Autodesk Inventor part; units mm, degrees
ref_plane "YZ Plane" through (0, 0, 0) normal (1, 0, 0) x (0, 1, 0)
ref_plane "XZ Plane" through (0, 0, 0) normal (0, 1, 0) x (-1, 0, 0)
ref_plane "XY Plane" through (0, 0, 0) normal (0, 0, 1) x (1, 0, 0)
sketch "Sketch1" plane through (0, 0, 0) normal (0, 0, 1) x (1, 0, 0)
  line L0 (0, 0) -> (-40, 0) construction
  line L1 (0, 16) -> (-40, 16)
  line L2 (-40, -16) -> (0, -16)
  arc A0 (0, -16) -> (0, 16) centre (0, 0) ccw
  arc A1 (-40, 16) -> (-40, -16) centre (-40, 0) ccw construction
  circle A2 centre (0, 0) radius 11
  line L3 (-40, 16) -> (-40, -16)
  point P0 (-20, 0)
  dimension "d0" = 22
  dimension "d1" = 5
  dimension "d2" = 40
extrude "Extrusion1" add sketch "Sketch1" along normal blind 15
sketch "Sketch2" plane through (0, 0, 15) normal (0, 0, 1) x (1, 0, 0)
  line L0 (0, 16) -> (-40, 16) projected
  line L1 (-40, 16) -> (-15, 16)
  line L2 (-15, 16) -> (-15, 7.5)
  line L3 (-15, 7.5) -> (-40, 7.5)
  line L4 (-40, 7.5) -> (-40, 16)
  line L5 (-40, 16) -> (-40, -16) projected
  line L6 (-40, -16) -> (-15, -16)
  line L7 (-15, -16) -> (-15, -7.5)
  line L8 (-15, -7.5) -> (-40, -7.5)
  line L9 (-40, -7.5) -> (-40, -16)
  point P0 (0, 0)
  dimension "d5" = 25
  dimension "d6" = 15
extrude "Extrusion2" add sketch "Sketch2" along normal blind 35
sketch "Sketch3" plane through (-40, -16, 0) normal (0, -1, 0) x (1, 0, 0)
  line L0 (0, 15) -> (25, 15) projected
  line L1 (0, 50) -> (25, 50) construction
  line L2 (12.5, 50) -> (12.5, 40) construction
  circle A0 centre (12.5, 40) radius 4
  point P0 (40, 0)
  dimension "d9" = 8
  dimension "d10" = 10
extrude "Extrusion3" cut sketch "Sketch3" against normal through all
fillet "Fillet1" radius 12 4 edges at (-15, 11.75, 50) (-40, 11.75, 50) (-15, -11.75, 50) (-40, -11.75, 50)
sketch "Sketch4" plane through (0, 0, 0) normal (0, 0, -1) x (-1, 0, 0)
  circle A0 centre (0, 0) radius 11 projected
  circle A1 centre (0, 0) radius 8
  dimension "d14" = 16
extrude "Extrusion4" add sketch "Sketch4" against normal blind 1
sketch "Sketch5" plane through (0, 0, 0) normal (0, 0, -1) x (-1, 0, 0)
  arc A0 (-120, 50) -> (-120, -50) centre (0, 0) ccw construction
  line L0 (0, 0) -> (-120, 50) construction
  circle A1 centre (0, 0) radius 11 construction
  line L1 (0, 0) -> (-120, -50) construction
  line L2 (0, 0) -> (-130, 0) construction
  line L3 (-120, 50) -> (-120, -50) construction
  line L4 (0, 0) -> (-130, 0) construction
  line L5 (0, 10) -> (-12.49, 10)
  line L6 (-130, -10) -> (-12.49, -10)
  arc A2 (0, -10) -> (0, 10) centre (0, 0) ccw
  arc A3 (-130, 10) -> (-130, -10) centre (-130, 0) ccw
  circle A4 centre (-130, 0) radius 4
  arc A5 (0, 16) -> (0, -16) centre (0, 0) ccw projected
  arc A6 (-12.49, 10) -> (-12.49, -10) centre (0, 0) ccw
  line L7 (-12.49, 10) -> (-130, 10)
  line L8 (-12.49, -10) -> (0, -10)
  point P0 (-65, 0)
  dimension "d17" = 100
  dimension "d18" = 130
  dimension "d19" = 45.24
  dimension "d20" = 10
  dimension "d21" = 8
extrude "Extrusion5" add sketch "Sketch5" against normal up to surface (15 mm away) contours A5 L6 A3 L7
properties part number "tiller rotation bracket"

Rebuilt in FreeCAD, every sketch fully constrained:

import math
import FreeCAD as App
import Part
import Sketcher


def edges_at(feature, points):
    """Names of the edges that pass closest to the given points."""
    edges = feature.Shape.Edges
    near = lambda p: min(range(len(edges)), key=lambda i: edges[i].distToShape(Part.Vertex(*p))[0])
    return sorted({f"Edge{near(p) + 1}" for p in points})

doc = App.newDocument("Part")
params = doc.addObject("Spreadsheet::Sheet", "Params")
for row, (alias, value) in enumerate([
    ("sketch1_diameter", "22 mm"),
    ("sketch1_width", "40 mm"),
    ("sketch1_radius", "16 mm"),
    ("pad1_length", "15 mm"),
    ("sketch2_width", "25 mm"),
    ("sketch2_height", "8.5 mm"),
    ("pad2_length", "35 mm"),
    ("sketch3_diameter", "8 mm"),
    ("fillet_radius", "12 mm"),
    ("sketch4_diameter", "16 mm"),
    ("sketch4_diameter2", "22 mm"),
    ("pad3_length", "1 mm"),
    ("sketch5_diameter", "8 mm"),
    ("sketch5_radius", "10 mm"),
    ("sketch5_radius2", "16 mm"),
    ("pad4_length", "15 mm"),
], start=1):
    params.set(f"A{row}", alias)
    params.set(f"B{row}", "=" + value)
    params.setAlias(f"B{row}", alias)

body = doc.addObject("PartDesign::Body", "Body")

# Sketch on XY plane
sketch1 = body.newObject("Sketcher::SketchObject", "Sketch")
sketch1.AttachmentSupport = (doc.getObject("XY_Plane"), [""])
sketch1.MapMode = "FlatFace"
sketch1.addGeometry(Part.ArcOfCircle(Part.Circle(App.Vector(0, 0, 0), App.Vector(0, 0, 1), 16), math.radians(-90), math.radians(90)), False)
sketch1.addGeometry(Part.LineSegment(App.Vector(0, 16, 0), App.Vector(-40, 16, 0)), False)
sketch1.addGeometry(Part.LineSegment(App.Vector(-40, 16, 0), App.Vector(-40, -16, 0)), False)
sketch1.addGeometry(Part.LineSegment(App.Vector(-40, -16, 0), App.Vector(0, -16, 0)), False)
sketch1.addGeometry(Part.Circle(App.Vector(0, 0, 0), App.Vector(0, 0, 1), 11), False)
sketch1.addConstraint(Sketcher.Constraint("Tangent", 0, 2, 1, 1))
sketch1.addConstraint(Sketcher.Constraint("Coincident", 1, 2, 2, 1))
sketch1.addConstraint(Sketcher.Constraint("Coincident", 2, 2, 3, 1))
sketch1.addConstraint(Sketcher.Constraint("Tangent", 3, 2, 0, 1))
sketch1.addConstraint(Sketcher.Constraint("Horizontal", 1))
sketch1.addConstraint(Sketcher.Constraint("Vertical", 2))
sketch1.addConstraint(Sketcher.Constraint("Horizontal", 3))
sketch1.addConstraint(Sketcher.Constraint("Coincident", 0, 3, -1, 1))
sketch1.addConstraint(Sketcher.Constraint("Coincident", 4, 3, -1, 1))
sketch1.addConstraint(Sketcher.Constraint("Diameter", 4, 22.0))
sketch1.addConstraint(Sketcher.Constraint("DistanceX", 1, 2, 1, 1, 40.0))
sketch1.addConstraint(Sketcher.Constraint("Radius", 0, 16.0))
sketch1.setExpression("Constraints[9]", "Params.sketch1_diameter")
sketch1.setExpression("Constraints[10]", "Params.sketch1_width")
sketch1.setExpression("Constraints[11]", "Params.sketch1_radius")
pad1 = body.newObject("PartDesign::Pad", "Pad")
pad1.Profile = sketch1
pad1.setExpression("Length", "Params.pad1_length")

# Sketch on XY plane
sketch2 = body.newObject("Sketcher::SketchObject", "Sketch001")
sketch2.AttachmentSupport = (doc.getObject("XY_Plane"), [""])
sketch2.MapMode = "FlatFace"
sketch2.AttachmentOffset = App.Placement(App.Vector(0, 0, 15), App.Rotation())
sketch2.addGeometry(Part.LineSegment(App.Vector(-15, 8, 0), App.Vector(-15, 16, 0)), False)
sketch2.addGeometry(Part.LineSegment(App.Vector(-15, 16, 0), App.Vector(-40, 16, 0)), False)
sketch2.addGeometry(Part.LineSegment(App.Vector(-40, 16, 0), App.Vector(-40, 8, 0)), False)
sketch2.addGeometry(Part.LineSegment(App.Vector(-40, 8, 0), App.Vector(-15, 8, 0)), False)
sketch2.addGeometry(Part.LineSegment(App.Vector(-15, -8, 0), App.Vector(-40, -8, 0)), False)
sketch2.addGeometry(Part.LineSegment(App.Vector(-40, -8, 0), App.Vector(-40, -16, 0)), False)
sketch2.addGeometry(Part.LineSegment(App.Vector(-40, -16, 0), App.Vector(-15, -16, 0)), False)
sketch2.addGeometry(Part.LineSegment(App.Vector(-15, -16, 0), App.Vector(-15, -8, 0)), False)
sketch2.addConstraint(Sketcher.Constraint("Coincident", 0, 2, 1, 1))
sketch2.addConstraint(Sketcher.Constraint("Coincident", 1, 2, 2, 1))
sketch2.addConstraint(Sketcher.Constraint("Coincident", 2, 2, 3, 1))
sketch2.addConstraint(Sketcher.Constraint("Coincident", 3, 2, 0, 1))
sketch2.addConstraint(Sketcher.Constraint("Coincident", 4, 2, 5, 1))
sketch2.addConstraint(Sketcher.Constraint("Coincident", 5, 2, 6, 1))
sketch2.addConstraint(Sketcher.Constraint("Coincident", 6, 2, 7, 1))
sketch2.addConstraint(Sketcher.Constraint("Coincident", 7, 2, 4, 1))
sketch2.addConstraint(Sketcher.Constraint("Vertical", 0))
sketch2.addConstraint(Sketcher.Constraint("Horizontal", 1))
sketch2.addConstraint(Sketcher.Constraint("Vertical", 2))
sketch2.addConstraint(Sketcher.Constraint("Horizontal", 3))
sketch2.addConstraint(Sketcher.Constraint("Horizontal", 4))
sketch2.addConstraint(Sketcher.Constraint("Vertical", 5))
sketch2.addConstraint(Sketcher.Constraint("Horizontal", 6))
sketch2.addConstraint(Sketcher.Constraint("Vertical", 7))
sketch2.addConstraint(Sketcher.Constraint("Symmetric", 2, 2, 4, 2, -1))
sketch2.addConstraint(Sketcher.Constraint("Symmetric", 0, 2, 6, 2, -1))
sketch2.addConstraint(Sketcher.Constraint("DistanceX", 1, 2, 1, 1, 25.0))
sketch2.addConstraint(Sketcher.Constraint("DistanceX", 0, 2, -1, 1, 15.0))
sketch2.addConstraint(Sketcher.Constraint("DistanceY", 4, 2, 2, 2, 15.0))
sketch2.addConstraint(Sketcher.Constraint("DistanceY", 0, 1, 0, 2, 8.5))
sketch2.setExpression("Constraints[18]", "Params.sketch2_width")
sketch2.setExpression("Constraints[21]", "Params.sketch2_height")
pad2 = body.newObject("PartDesign::Pad", "Pad001")
pad2.Profile = sketch2
pad2.setExpression("Length", "Params.pad2_length")

# Sketch on XZ plane
sketch3 = body.newObject("Sketcher::SketchObject", "Sketch002")
sketch3.AttachmentSupport = (doc.getObject("XZ_Plane"), [""])
sketch3.MapMode = "FlatFace"
sketch3.AttachmentOffset = App.Placement(App.Vector(0, 0, 16), App.Rotation())
sketch3.addGeometry(Part.Circle(App.Vector(-27.5, 40, 0), App.Vector(0, 0, 1), 4), False)
sketch3.addConstraint(Sketcher.Constraint("Diameter", 0, 8.0))
sketch3.addConstraint(Sketcher.Constraint("DistanceY", -1, 1, 0, 3, 40.0))
sketch3.addConstraint(Sketcher.Constraint("DistanceX", 0, 3, -1, 1, 27.5))
sketch3.setExpression("Constraints[0]", "Params.sketch3_diameter")
pocket1 = body.newObject("PartDesign::Pocket", "Pocket")
pocket1.Profile = sketch3
pocket1.Type = "ThroughAll"
doc.recompute()

fillet = body.newObject("PartDesign::Fillet", "Fillet")
fillet.Base = (pocket1, edges_at(pocket1, [
    (-15, 11.75, 50),
    (-40, 11.75, 50),
    (-15, -11.75, 50),
    (-40, -11.75, 50),
]))
fillet.setExpression("Radius", "Params.fillet_radius")

# Sketch on XY plane
sketch4 = body.newObject("Sketcher::SketchObject", "Sketch003")
sketch4.AttachmentSupport = (doc.getObject("XY_Plane"), [""])
sketch4.MapMode = "FlatFace"
sketch4.addGeometry(Part.Circle(App.Vector(0, 0, 0), App.Vector(0, 0, 1), 11), False)
sketch4.addGeometry(Part.Circle(App.Vector(0, 0, 0), App.Vector(0, 0, 1), 8), False)
sketch4.addConstraint(Sketcher.Constraint("Coincident", 0, 3, -1, 1))
sketch4.addConstraint(Sketcher.Constraint("Coincident", 1, 3, -1, 1))
sketch4.addConstraint(Sketcher.Constraint("Diameter", 1, 16.0))
sketch4.addConstraint(Sketcher.Constraint("Diameter", 0, 22.0))
sketch4.setExpression("Constraints[2]", "Params.sketch4_diameter")
sketch4.setExpression("Constraints[3]", "Params.sketch4_diameter2")
pad3 = body.newObject("PartDesign::Pad", "Pad002")
pad3.Profile = sketch4
pad3.setExpression("Length", "Params.pad3_length")

# Sketch on XY plane
sketch5 = body.newObject("Sketcher::SketchObject", "Sketch004")
sketch5.AttachmentSupport = (doc.getObject("XY_Plane"), [""])
sketch5.MapMode = "FlatFace"
sketch5.addGeometry(Part.ArcOfCircle(Part.Circle(App.Vector(0, 0, 0), App.Vector(0, 0, 1), 16), math.radians(-39), math.radians(39)), False)
sketch5.addGeometry(Part.LineSegment(App.Vector(12.5, 10, 0), App.Vector(130, 10, 0)), False)
sketch5.addGeometry(Part.ArcOfCircle(Part.Circle(App.Vector(130, 0, 0), App.Vector(0, 0, 1), 10), math.radians(-90), math.radians(90)), False)
sketch5.addGeometry(Part.LineSegment(App.Vector(130, -10, 0), App.Vector(12.5, -10, 0)), False)
sketch5.addGeometry(Part.Circle(App.Vector(130, 0, 0), App.Vector(0, 0, 1), 4), False)
sketch5.addConstraint(Sketcher.Constraint("Coincident", 0, 2, 1, 1))
sketch5.addConstraint(Sketcher.Constraint("Tangent", 1, 2, 2, 2))
sketch5.addConstraint(Sketcher.Constraint("Tangent", 2, 1, 3, 1))
sketch5.addConstraint(Sketcher.Constraint("Coincident", 3, 2, 0, 1))
sketch5.addConstraint(Sketcher.Constraint("Horizontal", 1))
sketch5.addConstraint(Sketcher.Constraint("Horizontal", 3))
sketch5.addConstraint(Sketcher.Constraint("Coincident", 0, 3, -1, 1))
sketch5.addConstraint(Sketcher.Constraint("Coincident", 4, 3, 2, 3))
sketch5.addConstraint(Sketcher.Constraint("PointOnObject", 2, 3, -1))
sketch5.addConstraint(Sketcher.Constraint("Diameter", 4, 8.0))
sketch5.addConstraint(Sketcher.Constraint("Radius", 2, 10.0))
sketch5.addConstraint(Sketcher.Constraint("DistanceX", -1, 1, 2, 3, 130.0))
sketch5.addConstraint(Sketcher.Constraint("Radius", 0, 16.0))
sketch5.setExpression("Constraints[9]", "Params.sketch5_diameter")
sketch5.setExpression("Constraints[10]", "Params.sketch5_radius")
sketch5.setExpression("Constraints[12]", "Params.sketch5_radius2")
pad4 = body.newObject("PartDesign::Pad", "Pad003")
pad4.Profile = sketch5
pad4.setExpression("Length", "Params.pad4_length")

doc.recompute()
